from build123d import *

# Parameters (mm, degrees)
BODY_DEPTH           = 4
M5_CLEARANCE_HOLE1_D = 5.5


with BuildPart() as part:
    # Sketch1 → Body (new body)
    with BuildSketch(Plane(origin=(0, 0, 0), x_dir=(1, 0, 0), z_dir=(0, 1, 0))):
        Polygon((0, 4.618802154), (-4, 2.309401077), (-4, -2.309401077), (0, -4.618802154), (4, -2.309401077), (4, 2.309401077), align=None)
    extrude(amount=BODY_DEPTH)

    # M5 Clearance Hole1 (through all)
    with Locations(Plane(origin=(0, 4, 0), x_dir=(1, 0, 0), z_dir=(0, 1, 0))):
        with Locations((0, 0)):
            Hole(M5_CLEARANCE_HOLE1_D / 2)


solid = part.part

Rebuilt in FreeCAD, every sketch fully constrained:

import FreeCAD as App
import Part
import Sketcher
from FreeCAD import Vector
Q = App.Units.Quantity

doc = App.newDocument("Part")
body = doc.addObject("PartDesign::Body", "Body")

# Sketch on XZ plane
sketch1 = body.newObject("Sketcher::SketchObject", "Sketch")
sketch1.AttachmentSupport = (doc.getObject("XZ_Plane"), [""])
sketch1.MapMode = "FlatFace"
sketch1.addGeometry([
    Part.LineSegment(Vector(0, -4.618802, 0), Vector(-4, -2.309401, 0)),  # 0
    Part.LineSegment(Vector(-4, -2.309401, 0), Vector(-4, 2.309401, 0)),  # 1
    Part.LineSegment(Vector(-4, 2.309401, 0), Vector(0, 4.618802, 0)),  # 2
    Part.LineSegment(Vector(0, 4.618802, 0), Vector(4, 2.309401, 0)),  # 3
    Part.LineSegment(Vector(4, 2.309401, 0), Vector(4, -2.309401, 0)),  # 4
    Part.LineSegment(Vector(4, -2.309401, 0), Vector(0, -4.618802, 0)),  # 5
], False)
sketch1.addConstraint([
    Sketcher.Constraint("Coincident", 0, 2, 1, 1),
    Sketcher.Constraint("Coincident", 1, 2, 2, 1),
    Sketcher.Constraint("Coincident", 2, 2, 3, 1),
    Sketcher.Constraint("Coincident", 3, 2, 4, 1),
    Sketcher.Constraint("Coincident", 4, 2, 5, 1),
    Sketcher.Constraint("Coincident", 5, 2, 0, 1),
    Sketcher.Constraint("Vertical", 1),
    Sketcher.Constraint("Vertical", 4),
    Sketcher.Constraint("Symmetric", 0, 2, 3, 2, -1, 1),
    Sketcher.Constraint("Symmetric", 2, 2, 5, 2, -1, 1),
    Sketcher.Constraint("PointOnObject", 2, 2, -2),
    Sketcher.Constraint("Parallel", 2, 5),
    Sketcher.Constraint("Horizontal", 1, 2, 3, 2),
    Sketcher.Constraint("Angle", 0, Q("150 deg")),
    Sketcher.Constraint("DistanceX", 0, 2, -1, 1, 4.0),
    Sketcher.Constraint("DistanceY", 0, 2, -1, 1, 2.309401),
])
pad1 = body.newObject("PartDesign::Pad", "Pad")
pad1.Profile = sketch1
pad1.Length = 4
pad1.Reversed = True

# Sketch on XZ plane
sketch2 = body.newObject("Sketcher::SketchObject", "Sketch001")
sketch2.AttachmentSupport = (doc.getObject("XZ_Plane"), [""])
sketch2.MapMode = "FlatFace"
sketch2.AttachmentOffset = App.Placement(Vector(0, 0, -4), App.Rotation())
sketch2.addGeometry(Part.Circle(Vector(0, 0, 0), Vector(0, 0, 1), 2.75), False)
sketch2.addConstraint([
    Sketcher.Constraint("Coincident", 0, 3, -1, 1),
    Sketcher.Constraint("Diameter", 0, 5.5),
])
doc.recompute()
hole = body.newObject("PartDesign::Hole", "Hole")
hole.Profile = sketch2
hole.ThreadType = "None"
hole.Diameter = 5.5
hole.DepthType = "ThroughAll"
hole.Reversed = True

doc.recompute()
